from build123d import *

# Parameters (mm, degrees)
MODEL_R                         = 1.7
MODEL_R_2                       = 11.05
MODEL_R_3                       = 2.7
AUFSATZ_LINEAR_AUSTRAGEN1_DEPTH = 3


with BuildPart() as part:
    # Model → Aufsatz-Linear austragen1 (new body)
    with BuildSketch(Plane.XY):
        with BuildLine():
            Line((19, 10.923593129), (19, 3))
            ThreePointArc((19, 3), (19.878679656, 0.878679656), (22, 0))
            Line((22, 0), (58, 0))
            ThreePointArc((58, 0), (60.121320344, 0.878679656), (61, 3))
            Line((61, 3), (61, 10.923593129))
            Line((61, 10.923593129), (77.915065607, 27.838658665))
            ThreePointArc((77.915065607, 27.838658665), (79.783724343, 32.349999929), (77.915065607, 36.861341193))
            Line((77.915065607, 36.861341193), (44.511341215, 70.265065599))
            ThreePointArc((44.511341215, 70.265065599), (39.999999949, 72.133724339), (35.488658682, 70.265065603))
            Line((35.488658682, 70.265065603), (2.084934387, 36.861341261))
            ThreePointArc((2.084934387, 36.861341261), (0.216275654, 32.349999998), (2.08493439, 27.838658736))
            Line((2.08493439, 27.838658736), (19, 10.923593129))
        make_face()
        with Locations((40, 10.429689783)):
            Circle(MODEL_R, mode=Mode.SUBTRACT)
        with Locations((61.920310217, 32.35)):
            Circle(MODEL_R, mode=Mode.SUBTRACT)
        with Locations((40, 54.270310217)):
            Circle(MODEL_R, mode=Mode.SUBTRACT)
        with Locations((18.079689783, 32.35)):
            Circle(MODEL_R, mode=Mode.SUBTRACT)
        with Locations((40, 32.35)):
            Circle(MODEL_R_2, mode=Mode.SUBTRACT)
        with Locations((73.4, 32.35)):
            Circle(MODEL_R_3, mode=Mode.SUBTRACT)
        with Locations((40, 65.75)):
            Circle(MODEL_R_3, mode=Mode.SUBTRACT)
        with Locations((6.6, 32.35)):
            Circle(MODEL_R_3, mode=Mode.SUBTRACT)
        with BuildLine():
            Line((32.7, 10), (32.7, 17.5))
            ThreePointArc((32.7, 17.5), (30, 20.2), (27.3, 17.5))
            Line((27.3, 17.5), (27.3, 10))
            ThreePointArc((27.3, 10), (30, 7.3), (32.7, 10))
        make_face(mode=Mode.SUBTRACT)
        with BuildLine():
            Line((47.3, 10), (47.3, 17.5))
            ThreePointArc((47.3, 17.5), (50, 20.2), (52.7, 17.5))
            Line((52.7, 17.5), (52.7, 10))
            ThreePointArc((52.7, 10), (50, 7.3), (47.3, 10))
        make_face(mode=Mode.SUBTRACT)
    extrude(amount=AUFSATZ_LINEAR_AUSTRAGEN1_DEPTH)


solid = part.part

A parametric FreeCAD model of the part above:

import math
import FreeCAD as App
import Part
import Sketcher
from FreeCAD import Vector
Q = App.Units.Quantity

doc = App.newDocument("Part")
body = doc.addObject("PartDesign::Body", "Body")

# Sketch on XY plane
sketch1 = body.newObject("Sketcher::SketchObject", "Sketch")
sketch1.AttachmentSupport = (doc.getObject("XY_Plane"), [""])
sketch1.MapMode = "FlatFace"
sketch1.addGeometry(Part.LineSegment(Vector(19, 10.923593, 0), Vector(19, 3, 0)), False)
sketch1.addGeometry(Part.ArcOfCircle(Part.Circle(Vector(22, 3, 0), Vector(0, 0, 1), 3), math.radians(180), math.radians(270)), False)
sketch1.addGeometry(Part.LineSegment(Vector(22, 0, 0), Vector(58, 0, 0)), False)
sketch1.addGeometry(Part.ArcOfCircle(Part.Circle(Vector(58, 3, 0), Vector(0, 0, 1), 3), math.radians(-90), math.radians(0)), False)
sketch1.addGeometry(Part.LineSegment(Vector(61, 3, 0), Vector(61, 10.923593, 0)), False)
sketch1.addGeometry(Part.LineSegment(Vector(61, 10.923593, 0), Vector(77.915066, 27.838659, 0)), False)
sketch1.addGeometry(Part.ArcOfCircle(Part.Circle(Vector(73.403724, 32.35, 0), Vector(0, 0, 1), 6.38), math.radians(-45), math.radians(45)), False)
sketch1.addGeometry(Part.LineSegment(Vector(77.915066, 36.861341, 0), Vector(44.511341, 70.265066, 0)), False)
sketch1.addGeometry(Part.ArcOfCircle(Part.Circle(Vector(40, 65.753724, 0), Vector(0, 0, 1), 6.38), math.radians(45), math.radians(135)), False)
sketch1.addGeometry(Part.LineSegment(Vector(35.488659, 70.265066, 0), Vector(2.084934, 36.861341, 0)), False)
sketch1.addGeometry(Part.ArcOfCircle(Part.Circle(Vector(6.596276, 32.35, 0), Vector(0, 0, 1), 6.38), math.radians(135), math.radians(225)), False)
sketch1.addGeometry(Part.LineSegment(Vector(2.084934, 27.838659, 0), Vector(19, 10.923593, 0)), False)
sketch1.addGeometry(Part.LineSegment(Vector(32.7, 17.5, 0), Vector(32.7, 10, 0)), False)
sketch1.addGeometry(Part.ArcOfCircle(Part.Circle(Vector(30, 10, 0), Vector(0, 0, 1), 2.7), math.radians(180), math.radians(360)), False)
sketch1.addGeometry(Part.LineSegment(Vector(27.3, 10, 0), Vector(27.3, 17.5, 0)), False)
sketch1.addGeometry(Part.ArcOfCircle(Part.Circle(Vector(30, 17.5, 0), Vector(0, 0, 1), 2.7), math.radians(0), math.radians(180)), False)
sketch1.addGeometry(Part.Circle(Vector(40, 10.42969, 0), Vector(0, 0, 1), 1.7), False)
sketch1.addGeometry(Part.Circle(Vector(6.6, 32.35, 0), Vector(0, 0, 1), 2.7), False)
sketch1.addGeometry(Part.Circle(Vector(18.07969, 32.35, 0), Vector(0, 0, 1), 1.7), False)
sketch1.addGeometry(Part.Circle(Vector(40, 32.35, 0), Vector(0, 0, 1), 11.05), False)
sketch1.addGeometry(Part.ArcOfCircle(Part.Circle(Vector(50, 10, 0), Vector(0, 0, 1), 2.7), math.radians(180), math.radians(360)), False)
sketch1.addGeometry(Part.LineSegment(Vector(47.3, 10, 0), Vector(47.3, 17.5, 0)), False)
sketch1.addGeometry(Part.ArcOfCircle(Part.Circle(Vector(50, 17.5, 0), Vector(0, 0, 1), 2.7), math.radians(0), math.radians(180)), False)
sketch1.addGeometry(Part.LineSegment(Vector(52.7, 17.5, 0), Vector(52.7, 10, 0)), False)
sketch1.addGeometry(Part.Circle(Vector(61.92031, 32.35, 0), Vector(0, 0, 1), 1.7), False)
sketch1.addGeometry(Part.Circle(Vector(73.4, 32.35, 0), Vector(0, 0, 1), 2.7), False)
sketch1.addGeometry(Part.Circle(Vector(40, 54.27031, 0), Vector(0, 0, 1), 1.7), False)
sketch1.addGeometry(Part.Circle(Vector(40, 65.75, 0), Vector(0, 0, 1), 2.7), False)
sketch1.addConstraint(Sketcher.Constraint("Tangent", 0, 2, 1, 1))
sketch1.addConstraint(Sketcher.Constraint("Tangent", 1, 2, 2, 1))
sketch1.addConstraint(Sketcher.Constraint("Tangent", 2, 2, 3, 1))
sketch1.addConstraint(Sketcher.Constraint("Tangent", 3, 2, 4, 1))
sketch1.addConstraint(Sketcher.Constraint("Coincident", 4, 2, 5, 1))
sketch1.addConstraint(Sketcher.Constraint("Tangent", 5, 2, 6, 1))
sketch1.addConstraint(Sketcher.Constraint("Tangent", 6, 2, 7, 1))
sketch1.addConstraint(Sketcher.Constraint("Tangent", 7, 2, 8, 1))
sketch1.addConstraint(Sketcher.Constraint("Tangent", 8, 2, 9, 1))
sketch1.addConstraint(Sketcher.Constraint("Tangent", 9, 2, 10, 1))
sketch1.addConstraint(Sketcher.Constraint("Tangent", 10, 2, 11, 1))
sketch1.addConstraint(Sketcher.Constraint("Coincident", 11, 2, 0, 1))
sketch1.addConstraint(Sketcher.Constraint("Tangent", 12, 2, 13, 2))
sketch1.addConstraint(Sketcher.Constraint("Tangent", 13, 1, 14, 1))
sketch1.addConstraint(Sketcher.Constraint("Tangent", 14, 2, 15, 2))
sketch1.addConstraint(Sketcher.Constraint("Tangent", 15, 1, 12, 1))
sketch1.addConstraint(Sketcher.Constraint("Tangent", 20, 1, 21, 1))
sketch1.addConstraint(Sketcher.Constraint("Tangent", 21, 2, 22, 2))
sketch1.addConstraint(Sketcher.Constraint("Tangent", 22, 1, 23, 1))
sketch1.addConstraint(Sketcher.Constraint("Tangent", 23, 2, 20, 2))
sketch1.addConstraint(Sketcher.Constraint("Vertical", 0))
sketch1.addConstraint(Sketcher.Constraint("Horizontal", 2))
sketch1.addConstraint(Sketcher.Constraint("Vertical", 4))
sketch1.addConstraint(Sketcher.Constraint("Vertical", 12))
sketch1.addConstraint(Sketcher.Constraint("Vertical", 14))
sketch1.addConstraint(Sketcher.Constraint("Vertical", 21))
sketch1.addConstraint(Sketcher.Constraint("Vertical", 23))
sketch1.addConstraint(Sketcher.Constraint("Equal", 1, 3))
sketch1.addConstraint(Sketcher.Constraint("Equal", 6, 8))
sketch1.addConstraint(Sketcher.Constraint("Equal", 8, 10))
sketch1.addConstraint(Sketcher.Constraint("Equal", 15, 17))
sketch1.addConstraint(Sketcher.Constraint("Equal", 16, 18))
sketch1.addConstraint(Sketcher.Constraint("Equal", 17, 20))
sketch1.addConstraint(Sketcher.Constraint("Equal", 18, 24))
sketch1.addConstraint(Sketcher.Constraint("Equal", 22, 25))
sketch1.addConstraint(Sketcher.Constraint("Equal", 24, 26))
sketch1.addConstraint(Sketcher.Constraint("Equal", 25, 27))
sketch1.addConstraint(Sketcher.Constraint("PointOnObject", 1, 2, -1))
sketch1.addConstraint(Sketcher.Constraint("Perpendicular", 5, 7))
sketch1.addConstraint(Sketcher.Constraint("Perpendicular", 7, 9))
sketch1.addConstraint(Sketcher.Constraint("Perpendicular", 9, 11))
sketch1.addConstraint(Sketcher.Constraint("Horizontal", 6, 3, 10, 3))
sketch1.addConstraint(Sketcher.Constraint("Horizontal", 10, 3, 17, 3))
sketch1.addConstraint(Sketcher.Constraint("Horizontal", 17, 3, 18, 3))
sketch1.addConstraint(Sketcher.Constraint("Horizontal", 18, 3, 19, 3))
sketch1.addConstraint(Sketcher.Constraint("Horizontal", 13, 3, 20, 3))
sketch1.addConstraint(Sketcher.Constraint("Horizontal", 15, 3, 22, 3))
sketch1.addConstraint(Sketcher.Constraint("Horizontal", 19, 3, 24, 3))
sketch1.addConstraint(Sketcher.Constraint("Horizontal", 24, 3, 25, 3))
sketch1.addConstraint(Sketcher.Constraint("Horizontal", 7, 2, 8, 2))
sketch1.addConstraint(Sketcher.Constraint("Horizontal", 4, 2, 11, 2))
sketch1.addConstraint(Sketcher.Constraint("Vertical", 8, 3, 16, 3))
sketch1.addConstraint(Sketcher.Constraint("Vertical", 16, 3, 19, 3))
sketch1.addConstraint(Sketcher.Constraint("Vertical", 19, 3, 26, 3))
sketch1.addConstraint(Sketcher.Constraint("Vertical", 26, 3, 27, 3))
sketch1.addConstraint(Sketcher.Constraint("Radius", 1, Q("3 mm")))
sketch1.addConstraint(Sketcher.Constraint("Diameter", 16, Q("3.4 mm")))
sketch1.addConstraint(Sketcher.Constraint("Diameter", 17, Q("5.4 mm")))
sketch1.addConstraint(Sketcher.Constraint("Diameter", 19, Q("22.1 mm")))
sketch1.addConstraint(Sketcher.Constraint("DistanceX", 2, 1, 2, 2, Q("36 mm")))
sketch1.addConstraint(Sketcher.Constraint("Radius", 6, Q("6.38 mm")))
sketch1.addConstraint(Sketcher.Constraint("DistanceY", 12, 2, 12, 1, Q("7.5 mm")))
sketch1.addConstraint(Sketcher.Constraint("DistanceX", -1, 1, 1, 3, Q("22 mm")))
sketch1.addConstraint(Sketcher.Constraint("DistanceX", -1, 1, 13, 3, Q("30 mm")))
sketch1.addConstraint(Sketcher.Constraint("DistanceY", -1, 1, 13, 3, Q("10 mm")))
sketch1.addConstraint(Sketcher.Constraint("DistanceX", -1, 1, 20, 3, Q("50 mm")))
sketch1.addConstraint(Sketcher.Constraint("DistanceX", -1, 1, 17, 3, Q("6.6 mm")))
sketch1.addConstraint(Sketcher.Constraint("DistanceX", -1, 1, 25, 3, Q("73.4 mm")))
sketch1.addConstraint(Sketcher.Constraint("DistanceY", 19, 3, 27, 3, Q("33.4 mm")))
sketch1.addConstraint(Sketcher.Constraint("Distance", 7, Q("47.24 mm")))
sketch1.addConstraint(Sketcher.Constraint("DistanceY", -1, 1, 6, 3, Q("32.35 mm")))
sketch1.addConstraint(Sketcher.Constraint("DistanceY", -1, 1, 16, 3, Q("10.42969 mm")))
sketch1.addConstraint(Sketcher.Constraint("DistanceX", -1, 1, 18, 3, Q("18.07969 mm")))
sketch1.addConstraint(Sketcher.Constraint("DistanceX", -1, 1, 24, 3, Q("61.92031 mm")))
sketch1.addConstraint(Sketcher.Constraint("DistanceY", -1, 1, 26, 3, Q("54.27031 mm")))
pad1 = body.newObject("PartDesign::Pad", "Pad")
pad1.Profile = sketch1
pad1.Length = 3

doc.recompute()
